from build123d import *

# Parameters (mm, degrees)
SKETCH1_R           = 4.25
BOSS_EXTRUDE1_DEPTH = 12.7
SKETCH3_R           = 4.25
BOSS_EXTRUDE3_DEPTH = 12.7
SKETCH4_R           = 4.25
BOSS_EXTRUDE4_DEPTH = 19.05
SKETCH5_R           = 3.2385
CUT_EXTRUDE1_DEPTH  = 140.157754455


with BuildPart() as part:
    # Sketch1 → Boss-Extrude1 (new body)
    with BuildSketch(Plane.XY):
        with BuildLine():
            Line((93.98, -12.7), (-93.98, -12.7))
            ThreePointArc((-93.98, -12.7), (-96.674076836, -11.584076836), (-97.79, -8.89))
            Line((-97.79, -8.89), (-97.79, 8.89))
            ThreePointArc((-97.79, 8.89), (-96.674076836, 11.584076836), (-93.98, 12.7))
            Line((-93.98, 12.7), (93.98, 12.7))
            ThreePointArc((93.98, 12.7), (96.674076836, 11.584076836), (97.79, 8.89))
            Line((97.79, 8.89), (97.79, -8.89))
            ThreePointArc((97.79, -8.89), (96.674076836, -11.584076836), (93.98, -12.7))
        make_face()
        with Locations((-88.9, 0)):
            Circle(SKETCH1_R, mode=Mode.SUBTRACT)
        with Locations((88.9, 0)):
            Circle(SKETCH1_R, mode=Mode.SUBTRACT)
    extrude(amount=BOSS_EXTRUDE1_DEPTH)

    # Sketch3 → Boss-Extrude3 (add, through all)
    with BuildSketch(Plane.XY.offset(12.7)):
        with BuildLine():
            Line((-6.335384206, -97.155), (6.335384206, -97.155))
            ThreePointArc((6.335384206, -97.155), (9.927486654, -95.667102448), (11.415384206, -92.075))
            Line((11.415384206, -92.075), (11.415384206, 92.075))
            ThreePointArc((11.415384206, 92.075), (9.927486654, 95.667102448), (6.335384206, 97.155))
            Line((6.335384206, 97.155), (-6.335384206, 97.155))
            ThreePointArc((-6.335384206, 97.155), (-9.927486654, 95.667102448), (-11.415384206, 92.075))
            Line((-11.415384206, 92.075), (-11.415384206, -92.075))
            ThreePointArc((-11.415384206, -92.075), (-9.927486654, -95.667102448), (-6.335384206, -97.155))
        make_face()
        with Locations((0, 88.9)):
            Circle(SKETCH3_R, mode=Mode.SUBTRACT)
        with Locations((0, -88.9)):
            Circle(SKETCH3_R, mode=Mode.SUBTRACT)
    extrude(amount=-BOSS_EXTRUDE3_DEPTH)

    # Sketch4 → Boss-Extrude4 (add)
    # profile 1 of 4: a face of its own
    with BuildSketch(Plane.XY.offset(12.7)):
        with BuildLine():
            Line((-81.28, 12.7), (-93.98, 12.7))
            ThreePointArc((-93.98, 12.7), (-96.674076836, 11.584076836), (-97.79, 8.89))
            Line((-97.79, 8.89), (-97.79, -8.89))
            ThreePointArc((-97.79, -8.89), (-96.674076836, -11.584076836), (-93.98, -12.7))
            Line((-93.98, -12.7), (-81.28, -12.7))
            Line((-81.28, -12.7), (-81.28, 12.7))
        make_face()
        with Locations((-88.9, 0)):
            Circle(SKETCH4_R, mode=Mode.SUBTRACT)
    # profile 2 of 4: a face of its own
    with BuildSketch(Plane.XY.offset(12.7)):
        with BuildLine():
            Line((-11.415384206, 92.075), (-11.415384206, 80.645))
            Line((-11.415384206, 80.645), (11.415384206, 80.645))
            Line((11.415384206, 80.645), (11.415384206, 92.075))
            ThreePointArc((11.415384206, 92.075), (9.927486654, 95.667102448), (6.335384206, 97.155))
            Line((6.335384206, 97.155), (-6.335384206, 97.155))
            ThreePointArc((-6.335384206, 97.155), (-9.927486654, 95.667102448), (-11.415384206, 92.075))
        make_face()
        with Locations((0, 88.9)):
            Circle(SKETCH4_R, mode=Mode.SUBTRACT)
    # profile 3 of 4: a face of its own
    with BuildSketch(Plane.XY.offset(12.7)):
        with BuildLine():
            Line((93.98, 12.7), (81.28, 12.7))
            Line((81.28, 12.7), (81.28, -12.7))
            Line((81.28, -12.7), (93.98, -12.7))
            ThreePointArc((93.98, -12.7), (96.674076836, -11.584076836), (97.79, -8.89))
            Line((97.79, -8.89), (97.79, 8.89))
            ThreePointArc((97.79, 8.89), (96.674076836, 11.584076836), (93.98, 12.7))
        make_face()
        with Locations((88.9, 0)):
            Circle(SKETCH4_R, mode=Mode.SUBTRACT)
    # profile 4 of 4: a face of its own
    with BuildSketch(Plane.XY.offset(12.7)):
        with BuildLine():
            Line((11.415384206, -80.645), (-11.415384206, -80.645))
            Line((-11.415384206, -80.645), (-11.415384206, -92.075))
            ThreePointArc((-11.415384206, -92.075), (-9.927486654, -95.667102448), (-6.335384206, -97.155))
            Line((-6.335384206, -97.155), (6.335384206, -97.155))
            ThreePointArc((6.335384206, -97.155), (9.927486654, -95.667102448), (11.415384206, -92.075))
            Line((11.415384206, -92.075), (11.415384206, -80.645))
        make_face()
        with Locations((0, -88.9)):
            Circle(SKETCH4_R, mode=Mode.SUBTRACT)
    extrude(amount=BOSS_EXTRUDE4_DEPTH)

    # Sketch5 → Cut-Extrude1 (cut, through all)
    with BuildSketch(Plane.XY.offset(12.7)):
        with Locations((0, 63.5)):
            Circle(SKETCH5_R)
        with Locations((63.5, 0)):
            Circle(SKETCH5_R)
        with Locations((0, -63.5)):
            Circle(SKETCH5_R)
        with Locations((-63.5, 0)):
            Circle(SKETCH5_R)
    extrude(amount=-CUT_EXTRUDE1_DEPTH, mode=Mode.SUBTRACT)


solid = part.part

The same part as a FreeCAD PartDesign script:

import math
import FreeCAD as App
import Part
import Sketcher
from FreeCAD import Vector
Q = App.Units.Quantity

doc = App.newDocument("Part")
body = doc.addObject("PartDesign::Body", "Body")

# Sketch on XY plane
sketch1 = body.newObject("Sketcher::SketchObject", "Sketch")
sketch1.AttachmentSupport = (doc.getObject("XY_Plane"), [""])
sketch1.MapMode = "FlatFace"
sketch1.addGeometry([
    Part.LineSegment(Vector(-94, -12.7, 0), Vector(94, -12.7, 0)),  # 0
    Part.ArcOfCircle(Part.Circle(Vector(94, -8.9, 0), Vector(0, 0, 1), 3.8), math.radians(-90), math.radians(0)),  # 1
    Part.LineSegment(Vector(97.8, -8.9, 0), Vector(97.8, 8.9, 0)),  # 2
    Part.ArcOfCircle(Part.Circle(Vector(94, 8.9, 0), Vector(0, 0, 1), 3.8), math.radians(0), math.radians(90)),  # 3
    Part.LineSegment(Vector(94, 12.7, 0), Vector(-94, 12.7, 0)),  # 4
    Part.ArcOfCircle(Part.Circle(Vector(-94, 8.9, 0), Vector(0, 0, 1), 3.8), math.radians(90), math.radians(180)),  # 5
    Part.LineSegment(Vector(-97.8, 8.9, 0), Vector(-97.8, -8.9, 0)),  # 6
    Part.ArcOfCircle(Part.Circle(Vector(-94, -8.9, 0), Vector(0, 0, 1), 3.8), math.radians(-180), math.radians(-90)),  # 7
    Part.Circle(Vector(88.9, 0, 0), Vector(0, 0, 1), 4.2),  # 8
    Part.Circle(Vector(-88.9, 0, 0), Vector(0, 0, 1), 4.2),  # 9
], False)
sketch1.addConstraint([
    Sketcher.Constraint("Tangent", 0, 2, 1, 1),
    Sketcher.Constraint("Tangent", 1, 2, 2, 1),
    Sketcher.Constraint("Tangent", 2, 2, 3, 1),
    Sketcher.Constraint("Tangent", 3, 2, 4, 1),
    Sketcher.Constraint("Tangent", 4, 2, 5, 1),
    Sketcher.Constraint("Tangent", 5, 2, 6, 1),
    Sketcher.Constraint("Tangent", 6, 2, 7, 1),
    Sketcher.Constraint("Tangent", 7, 2, 0, 1),
    Sketcher.Constraint("Horizontal", 0),
    Sketcher.Constraint("Vertical", 2),
    Sketcher.Constraint("Horizontal", 4),
    Sketcher.Constraint("Vertical", 6),
    Sketcher.Constraint("Equal", 1, 3),
    Sketcher.Constraint("Equal", 3, 5),
    Sketcher.Constraint("Equal", 5, 7),
    Sketcher.Constraint("Equal", 8, 9),
    Sketcher.Constraint("Symmetric", 1, 3, 5, 3, -1, 1),
    Sketcher.Constraint("Symmetric", 8, 3, 9, 3, -1, 1),
    Sketcher.Constraint("PointOnObject", 8, 3, -1),
    Sketcher.Constraint("Radius", 1, Q("0.15 in")),
    Sketcher.Constraint("DistanceX", 0, 1, 0, 2, Q("7.4 in")),
    Sketcher.Constraint("DistanceY", 2, 1, 2, 2, Q("0.7 in")),
    Sketcher.Constraint("DistanceX", 9, 3, 8, 3, Q("7 in")),
    Sketcher.Constraint("Diameter", 8, Q("8.5 mm")),
])
pad1 = body.newObject("PartDesign::Pad", "Pad")
pad1.Profile = sketch1
pad1.Length = Q("0.5 in")

# Sketch on XY plane
sketch2 = body.newObject("Sketcher::SketchObject", "Sketch001")
sketch2.AttachmentSupport = (doc.getObject("XY_Plane"), [""])
sketch2.MapMode = "FlatFace"
sketch2.AttachmentOffset = App.Placement(Vector(0, 0, 0.5 * 25.4), App.Rotation())
sketch2.addGeometry([
    Part.LineSegment(Vector(-6.3, -97.2, 0), Vector(6.3, -97.2, 0)),  # 0
    Part.ArcOfCircle(Part.Circle(Vector(6.3, -92.1, 0), Vector(0, 0, 1), 5.1), math.radians(-90), math.radians(0)),  # 1
    Part.LineSegment(Vector(11.4, -92.1, 0), Vector(11.4, 92.1, 0)),  # 2
    Part.ArcOfCircle(Part.Circle(Vector(6.3, 92.1, 0), Vector(0, 0, 1), 5.1), math.radians(0), math.radians(90)),  # 3
    Part.LineSegment(Vector(6.3, 97.2, 0), Vector(-6.3, 97.2, 0)),  # 4
    Part.ArcOfCircle(Part.Circle(Vector(-6.3, 92.1, 0), Vector(0, 0, 1), 5.1), math.radians(90), math.radians(180)),  # 5
    Part.LineSegment(Vector(-11.4, 92.1, 0), Vector(-11.4, -92.1, 0)),  # 6
    Part.ArcOfCircle(Part.Circle(Vector(-6.3, -92.1, 0), Vector(0, 0, 1), 5.1), math.radians(-180), math.radians(-90)),  # 7
    Part.Circle(Vector(0, -88.9, 0), Vector(0, 0, 1), 4.2),  # 8
    Part.Circle(Vector(0, 88.9, 0), Vector(0, 0, 1), 4.2),  # 9
], False)
sketch2.addConstraint([
    Sketcher.Constraint("Tangent", 0, 2, 1, 1),
    Sketcher.Constraint("Tangent", 1, 2, 2, 1),
    Sketcher.Constraint("Tangent", 2, 2, 3, 1),
    Sketcher.Constraint("Tangent", 3, 2, 4, 1),
    Sketcher.Constraint("Tangent", 4, 2, 5, 1),
    Sketcher.Constraint("Tangent", 5, 2, 6, 1),
    Sketcher.Constraint("Tangent", 6, 2, 7, 1),
    Sketcher.Constraint("Tangent", 7, 2, 0, 1),
    Sketcher.Constraint("Horizontal", 0),
    Sketcher.Constraint("Vertical", 2),
    Sketcher.Constraint("Horizontal", 4),
    Sketcher.Constraint("Vertical", 6),
    Sketcher.Constraint("Equal", 1, 3),
    Sketcher.Constraint("Equal", 3, 5),
    Sketcher.Constraint("Equal", 5, 7),
    Sketcher.Constraint("Equal", 8, 9),
    Sketcher.Constraint("Symmetric", 1, 3, 5, 3, -1, 1),
    Sketcher.Constraint("Symmetric", 8, 3, 9, 3, -1, 1),
    Sketcher.Constraint("PointOnObject", 8, 3, -2),
    Sketcher.Constraint("Radius", 1, Q("0.2 in")),
    Sketcher.Constraint("DistanceY", 8, 3, 9, 3, Q("7 in")),
    Sketcher.Constraint("DistanceY", 2, 1, 2, 2, Q("7.25 in")),
    Sketcher.Constraint("Diameter", 8, Q("8.5 mm")),
    Sketcher.Constraint("DistanceX", 0, 1, 0, 2, Q("12.670768 mm")),
])
pad2 = body.newObject("PartDesign::Pad", "Pad001")
pad2.Profile = sketch2
pad2.Type = "UpToLast"
pad2.Reversed = True

# Sketch on XY plane
sketch3 = body.newObject("Sketcher::SketchObject", "Sketch002")
sketch3.AttachmentSupport = (doc.getObject("XY_Plane"), [""])
sketch3.MapMode = "FlatFace"
sketch3.AttachmentOffset = App.Placement(Vector(0, 0, 0.5 * 25.4), App.Rotation())
sketch3.addGeometry([
    Part.LineSegment(Vector(-81.3, 12.7, 0), Vector(-94, 12.7, 0)),  # 0
    Part.ArcOfCircle(Part.Circle(Vector(-94, 8.9, 0), Vector(0, 0, 1), 3.8), math.radians(90), math.radians(180)),  # 1
    Part.LineSegment(Vector(-97.8, 8.9, 0), Vector(-97.8, -8.9, 0)),  # 2
    Part.ArcOfCircle(Part.Circle(Vector(-94, -8.9, 0), Vector(0, 0, 1), 3.8), math.radians(-180), math.radians(-90)),  # 3
    Part.LineSegment(Vector(-94, -12.7, 0), Vector(-81.3, -12.7, 0)),  # 4
    Part.LineSegment(Vector(-81.3, -12.7, 0), Vector(-81.3, 12.7, 0)),  # 5
    Part.Circle(Vector(-88.9, 0, 0), Vector(0, 0, 1), 4.2),  # 6
    Part.LineSegment(Vector(-11.4, 92.1, 0), Vector(-11.4, 80.6, 0)),  # 7
    Part.LineSegment(Vector(-11.4, 80.6, 0), Vector(11.4, 80.6, 0)),  # 8
    Part.LineSegment(Vector(11.4, 80.6, 0), Vector(11.4, 92.1, 0)),  # 9
    Part.ArcOfCircle(Part.Circle(Vector(6.3, 92.1, 0), Vector(0, 0, 1), 5.1), math.radians(0), math.radians(90)),  # 10
    Part.LineSegment(Vector(6.3, 97.2, 0), Vector(-6.3, 97.2, 0)),  # 11
    Part.ArcOfCircle(Part.Circle(Vector(-6.3, 92.1, 0), Vector(0, 0, 1), 5.1), math.radians(90), math.radians(180)),  # 12
    Part.Circle(Vector(0, 88.9, 0), Vector(0, 0, 1), 4.2),  # 13
    Part.LineSegment(Vector(94, 12.7, 0), Vector(81.3, 12.7, 0)),  # 14
    Part.LineSegment(Vector(81.3, 12.7, 0), Vector(81.3, -12.7, 0)),  # 15
    Part.LineSegment(Vector(81.3, -12.7, 0), Vector(94, -12.7, 0)),  # 16
    Part.ArcOfCircle(Part.Circle(Vector(94, -8.9, 0), Vector(0, 0, 1), 3.8), math.radians(-90), math.radians(0)),  # 17
    Part.LineSegment(Vector(97.8, -8.9, 0), Vector(97.8, 8.9, 0)),  # 18
    Part.ArcOfCircle(Part.Circle(Vector(94, 8.9, 0), Vector(0, 0, 1), 3.8), math.radians(0), math.radians(90)),  # 19
    Part.Circle(Vector(88.9, 0, 0), Vector(0, 0, 1), 4.2),  # 20
    Part.LineSegment(Vector(11.4, -80.6, 0), Vector(-11.4, -80.6, 0)),  # 21
    Part.LineSegment(Vector(-11.4, -80.6, 0), Vector(-11.4, -92.1, 0)),  # 22
    Part.ArcOfCircle(Part.Circle(Vector(-6.3, -92.1, 0), Vector(0, 0, 1), 5.1), math.radians(-180), math.radians(-90)),  # 23
    Part.LineSegment(Vector(-6.3, -97.2, 0), Vector(6.3, -97.2, 0)),  # 24
    Part.ArcOfCircle(Part.Circle(Vector(6.3, -92.1, 0), Vector(0, 0, 1), 5.1), math.radians(-90), math.radians(0)),  # 25
    Part.LineSegment(Vector(11.4, -92.1, 0), Vector(11.4, -80.6, 0)),  # 26
    Part.Circle(Vector(0, -88.9, 0), Vector(0, 0, 1), 4.2),  # 27
], False)
sketch3.addConstraint([
    Sketcher.Constraint("Tangent", 0, 2, 1, 1),
    Sketcher.Constraint("Tangent", 1, 2, 2, 1),
    Sketcher.Constraint("Tangent", 2, 2, 3, 1),
    Sketcher.Constraint("Tangent", 3, 2, 4, 1),
    Sketcher.Constraint("Coincident", 4, 2, 5, 1),
    Sketcher.Constraint("Coincident", 5, 2, 0, 1),
    Sketcher.Constraint("Coincident", 7, 2, 8, 1),
    Sketcher.Constraint("Coincident", 8, 2, 9, 1),
    Sketcher.Constraint("Tangent", 9, 2, 10, 1),
    Sketcher.Constraint("Tangent", 10, 2, 11, 1),
    Sketcher.Constraint("Tangent", 11, 2, 12, 1),
    Sketcher.Constraint("Tangent", 12, 2, 7, 1),
    Sketcher.Constraint("Coincident", 14, 2, 15, 1),
    Sketcher.Constraint("Coincident", 15, 2, 16, 1),
    Sketcher.Constraint("Tangent", 16, 2, 17, 1),
    Sketcher.Constraint("Tangent", 17, 2, 18, 1),
    Sketcher.Constraint("Tangent", 18, 2, 19, 1),
    Sketcher.Constraint("Tangent", 19, 2, 14, 1),
    Sketcher.Constraint("Coincident", 21, 2, 22, 1),
    Sketcher.Constraint("Tangent", 22, 2, 23, 1),
    Sketcher.Constraint("Tangent", 23, 2, 24, 1),
    Sketcher.Constraint("Tangent", 24, 2, 25, 1),
    Sketcher.Constraint("Tangent", 25, 2, 26, 1),
    Sketcher.Constraint("Coincident", 26, 2, 21, 1),
    Sketcher.Constraint("Horizontal", 0),
    Sketcher.Constraint("Vertical", 2),
    Sketcher.Constraint("Horizontal", 4),
    Sketcher.Constraint("Vertical", 5),
    Sketcher.Constraint("Vertical", 7),
    Sketcher.Constraint("Horizontal", 8),
    Sketcher.Constraint("Vertical", 9),
    Sketcher.Constraint("Horizontal", 11),
    Sketcher.Constraint("Horizontal", 14),
    Sketcher.Constraint("Vertical", 15),
    Sketcher.Constraint("Horizontal", 16),
    Sketcher.Constraint("Vertical", 18),
    Sketcher.Constraint("Horizontal", 21),
    Sketcher.Constraint("Vertical", 22),
    Sketcher.Constraint("Horizontal", 24),
    Sketcher.Constraint("Vertical", 26),
    Sketcher.Constraint("Equal", 1, 3),
    Sketcher.Constraint("Equal", 10, 12),
    Sketcher.Constraint("Equal", 6, 13),
    Sketcher.Constraint("Equal", 3, 17),
    Sketcher.Constraint("Equal", 17, 19),
    Sketcher.Constraint("Equal", 13, 20),
    Sketcher.Constraint("Equal", 12, 23),
    Sketcher.Constraint("Equal", 23, 25),
    Sketcher.Constraint("Equal", 20, 27),
    Sketcher.Constraint("Symmetric", 1, 3, 17, 3, -1, 1),
    Sketcher.Constraint("Symmetric", 6, 3, 20, 3, -1, 1),
    Sketcher.Constraint("Symmetric", 10, 3, 23, 3, -1, 1),
    Sketcher.Constraint("Symmetric", 13, 3, 27, 3, -1, 1),
    Sketcher.Constraint("Symmetric", 4, 2, 14, 2, -1, 1),
    Sketcher.Constraint("Symmetric", 7, 2, 26, 2, -1, 1),
    Sketcher.Constraint("PointOnObject", 6, 3, -1),
    Sketcher.Constraint("PointOnObject", 13, 3, -2),
    Sketcher.Constraint("Horizontal", 3, 3, 17, 3),
    Sketcher.Constraint("Vertical", 12, 3, 23, 3),
    Sketcher.Constraint("Radius", 10, Q("0.2 in")),
    Sketcher.Constraint("DistanceY", 5, 1, 5, 2, Q("1 in")),
    Sketcher.Constraint("Radius", 1, Q("0.15 in")),
    Sketcher.Constraint("DistanceX", 0, 2, 0, 1, Q("0.5 in")),
    Sketcher.Constraint("DistanceY", 0, 2, 13, 3, Q("3 in")),
    Sketcher.Constraint("DistanceY", 7, 2, 7, 1, Q("0.45 in")),
    Sketcher.Constraint("DistanceX", 1, 3, -1, 1, Q("3.7 in")),
    Sketcher.Constraint("DistanceX", 6, 3, -1, 1, Q("3.5 in")),
    Sketcher.Constraint("Diameter", 6, Q("8.5 mm")),
    Sketcher.Constraint("DistanceY", -1, 1, 10, 3, Q("3.625 in")),
    Sketcher.Constraint("DistanceX", 8, 1, 8, 2, Q("22.830768 mm")),
])
pad3 = body.newObject("PartDesign::Pad", "Pad002")
pad3.Profile = sketch3
pad3.Length = Q("0.75 in")

# Sketch on XY plane
sketch4 = body.newObject("Sketcher::SketchObject", "Sketch003")
sketch4.AttachmentSupport = (doc.getObject("XY_Plane"), [""])
sketch4.MapMode = "FlatFace"
sketch4.AttachmentOffset = App.Placement(Vector(0, 0, 0.5 * 25.4), App.Rotation())
sketch4.addGeometry([
    Part.Circle(Vector(0, 63.5, 0), Vector(0, 0, 1), 3.2),
    Part.Circle(Vector(63.5, 0, 0), Vector(0, 0, 1), 3.2),
    Part.Circle(Vector(0, -63.5, 0), Vector(0, 0, 1), 3.2),
    Part.Circle(Vector(-63.5, 0, 0), Vector(0, 0, 1), 3.2),
], False)
sketch4.addConstraint([
    Sketcher.Constraint("Equal", 0, 1),
    Sketcher.Constraint("Equal", 1, 2),
    Sketcher.Constraint("Equal", 2, 3),
    Sketcher.Constraint("Symmetric", 0, 3, 2, 3, -1, 1),
    Sketcher.Constraint("Symmetric", 1, 3, 3, 3, -1, 1),
    Sketcher.Constraint("PointOnObject", 0, 3, -2),
    Sketcher.Constraint("PointOnObject", 1, 3, -1),
    Sketcher.Constraint("Diameter", 0, Q("0.255 in")),
    Sketcher.Constraint("DistanceY", 2, 3, 0, 3, Q("5 in")),
    Sketcher.Constraint("DistanceX", 3, 3, 1, 3, Q("5 in")),
])
pocket1 = body.newObject("PartDesign::Pocket", "Pocket")
pocket1.Profile = sketch4
pocket1.Type = "ThroughAll"

doc.recompute()
